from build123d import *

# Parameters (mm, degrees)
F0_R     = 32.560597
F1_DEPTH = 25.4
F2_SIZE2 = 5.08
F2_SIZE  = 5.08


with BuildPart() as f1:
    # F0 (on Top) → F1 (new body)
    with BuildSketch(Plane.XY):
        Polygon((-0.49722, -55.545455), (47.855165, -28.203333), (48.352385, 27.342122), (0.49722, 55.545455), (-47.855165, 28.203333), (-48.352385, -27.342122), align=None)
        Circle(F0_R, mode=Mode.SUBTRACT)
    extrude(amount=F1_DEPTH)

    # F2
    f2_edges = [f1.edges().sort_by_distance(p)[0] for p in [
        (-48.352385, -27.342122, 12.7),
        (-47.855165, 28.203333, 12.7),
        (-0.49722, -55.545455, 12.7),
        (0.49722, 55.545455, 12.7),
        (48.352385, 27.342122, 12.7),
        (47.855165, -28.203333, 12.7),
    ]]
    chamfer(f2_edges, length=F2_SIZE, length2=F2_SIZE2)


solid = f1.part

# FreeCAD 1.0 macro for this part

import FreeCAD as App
import Part
import Sketcher
from FreeCAD import Vector
Q = App.Units.Quantity


def edges_at(feature, points):
    """Names of the edges that pass closest to the given points."""
    edges = feature.Shape.Edges
    near = lambda p: min(range(len(edges)), key=lambda i: edges[i].distToShape(Part.Vertex(*p))[0])
    return sorted({f"Edge{near(p) + 1}" for p in points})

doc = App.newDocument("Part")
body = doc.addObject("PartDesign::Body", "Body")

# Sketch on XY plane
sketch1 = body.newObject("Sketcher::SketchObject", "Sketch")
sketch1.AttachmentSupport = (doc.getObject("XY_Plane"), [""])
sketch1.MapMode = "FlatFace"
sketch1.addGeometry(Part.LineSegment(Vector(0, -56, 0), Vector(48, -28, 0)), False)
sketch1.addGeometry(Part.LineSegment(Vector(48, -28, 0), Vector(48, 27, 0)), False)
sketch1.addGeometry(Part.LineSegment(Vector(48, 27, 0), Vector(0, 56, 0)), False)
sketch1.addGeometry(Part.LineSegment(Vector(0, 56, 0), Vector(-48, 28, 0)), False)
sketch1.addGeometry(Part.LineSegment(Vector(-48, 28, 0), Vector(-48, -27, 0)), False)
sketch1.addGeometry(Part.LineSegment(Vector(-48, -27, 0), Vector(0, -56, 0)), False)
sketch1.addGeometry(Part.Circle(Vector(0, 0, 0), Vector(0, 0, 1), 33), False)
sketch1.addConstraint(Sketcher.Constraint("Coincident", 0, 2, 1, 1))
sketch1.addConstraint(Sketcher.Constraint("Coincident", 1, 2, 2, 1))
sketch1.addConstraint(Sketcher.Constraint("Coincident", 2, 2, 3, 1))
sketch1.addConstraint(Sketcher.Constraint("Coincident", 3, 2, 4, 1))
sketch1.addConstraint(Sketcher.Constraint("Coincident", 4, 2, 5, 1))
sketch1.addConstraint(Sketcher.Constraint("Coincident", 5, 2, 0, 1))
sketch1.addConstraint(Sketcher.Constraint("Coincident", 6, 3, -1, 1))
sketch1.addConstraint(Sketcher.Constraint("Symmetric", 0, 2, 3, 2, -1, 1))
sketch1.addConstraint(Sketcher.Constraint("Symmetric", 1, 2, 4, 2, -1, 1))
sketch1.addConstraint(Sketcher.Constraint("Symmetric", 2, 2, 5, 2, -1, 1))
sketch1.addConstraint(Sketcher.Constraint("Equal", 0, 1))
sketch1.addConstraint(Sketcher.Constraint("Equal", 1, 2))
sketch1.addConstraint(Sketcher.Constraint("Diameter", 6, Q("65.121194 mm")))
sketch1.addConstraint(Sketcher.Constraint("Distance", 0, Q("55.54768 mm")))
sketch1.addConstraint(Sketcher.Constraint("DistanceY", -1, 1, 1, 2, Q("27.342122 mm")))
sketch1.addConstraint(Sketcher.Constraint("DistanceX", -1, 1, 2, 2, Q("0.49722 mm")))
sketch1.addConstraint(Sketcher.Constraint("DistanceX", 0, 2, 1, 2, Q("0.49722 mm")))
pad1 = body.newObject("PartDesign::Pad", "Pad")
pad1.Profile = sketch1
pad1.Length = Q("1 in")
doc.recompute()

chamfer = body.newObject("PartDesign::Chamfer", "Chamfer")
chamfer.Base = (pad1, edges_at(pad1, [
    (-48.352, -27.342, 12.7),
    (-47.855, 28.203, 12.7),
    (-0.497, -55.545, 12.7),
    (0.497, 55.545, 12.7),
    (48.352, 27.342, 12.7),
    (47.855, -28.203, 12.7),
]))
chamfer.ChamferType = "Two distances"
chamfer.Size = Q("0.2 in")
chamfer.Size2 = Q("0.2 in")

doc.recompute()
